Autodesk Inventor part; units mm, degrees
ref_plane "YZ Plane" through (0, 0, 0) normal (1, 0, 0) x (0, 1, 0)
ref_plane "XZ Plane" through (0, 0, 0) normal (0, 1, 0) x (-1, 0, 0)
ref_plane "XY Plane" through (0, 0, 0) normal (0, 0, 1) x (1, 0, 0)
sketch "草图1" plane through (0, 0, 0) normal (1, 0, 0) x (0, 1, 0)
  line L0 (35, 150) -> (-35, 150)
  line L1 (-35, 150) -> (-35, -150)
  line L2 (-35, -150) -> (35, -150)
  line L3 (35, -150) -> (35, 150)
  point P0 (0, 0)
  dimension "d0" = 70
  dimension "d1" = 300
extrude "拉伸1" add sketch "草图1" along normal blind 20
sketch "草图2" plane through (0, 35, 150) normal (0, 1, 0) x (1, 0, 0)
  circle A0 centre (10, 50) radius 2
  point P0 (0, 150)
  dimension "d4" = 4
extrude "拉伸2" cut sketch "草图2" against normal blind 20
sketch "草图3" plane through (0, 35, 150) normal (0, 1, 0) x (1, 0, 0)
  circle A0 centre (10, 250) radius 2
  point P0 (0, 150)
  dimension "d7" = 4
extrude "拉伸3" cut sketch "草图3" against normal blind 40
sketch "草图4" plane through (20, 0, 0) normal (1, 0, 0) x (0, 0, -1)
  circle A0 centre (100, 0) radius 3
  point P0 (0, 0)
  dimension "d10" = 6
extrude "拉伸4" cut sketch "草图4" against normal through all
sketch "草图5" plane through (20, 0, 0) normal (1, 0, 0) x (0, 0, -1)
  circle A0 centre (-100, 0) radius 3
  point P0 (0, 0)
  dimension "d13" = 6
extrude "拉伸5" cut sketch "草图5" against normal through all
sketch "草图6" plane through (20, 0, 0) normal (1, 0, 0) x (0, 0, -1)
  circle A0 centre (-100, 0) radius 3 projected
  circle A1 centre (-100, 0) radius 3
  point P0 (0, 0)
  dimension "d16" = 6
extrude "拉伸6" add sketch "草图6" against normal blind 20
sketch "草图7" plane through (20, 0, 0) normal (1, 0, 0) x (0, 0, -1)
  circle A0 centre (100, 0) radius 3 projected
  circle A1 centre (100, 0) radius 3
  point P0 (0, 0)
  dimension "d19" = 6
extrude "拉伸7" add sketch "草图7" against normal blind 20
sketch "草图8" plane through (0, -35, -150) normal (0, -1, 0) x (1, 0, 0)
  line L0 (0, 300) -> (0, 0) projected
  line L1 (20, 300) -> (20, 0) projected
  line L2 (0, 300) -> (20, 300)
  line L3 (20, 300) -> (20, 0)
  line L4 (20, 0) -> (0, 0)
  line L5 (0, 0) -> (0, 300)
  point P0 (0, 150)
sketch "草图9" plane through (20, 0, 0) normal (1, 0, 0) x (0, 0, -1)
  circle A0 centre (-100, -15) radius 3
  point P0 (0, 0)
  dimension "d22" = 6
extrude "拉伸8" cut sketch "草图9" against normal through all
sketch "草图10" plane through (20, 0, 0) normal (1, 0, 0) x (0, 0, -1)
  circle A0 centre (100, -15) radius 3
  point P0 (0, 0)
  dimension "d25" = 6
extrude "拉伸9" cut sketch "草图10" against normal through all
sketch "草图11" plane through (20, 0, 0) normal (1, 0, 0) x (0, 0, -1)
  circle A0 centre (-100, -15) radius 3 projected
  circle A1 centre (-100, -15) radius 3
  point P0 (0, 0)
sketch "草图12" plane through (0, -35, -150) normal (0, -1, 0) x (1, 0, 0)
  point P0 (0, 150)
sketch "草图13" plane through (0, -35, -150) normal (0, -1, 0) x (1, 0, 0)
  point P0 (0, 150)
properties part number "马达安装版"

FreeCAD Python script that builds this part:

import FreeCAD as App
import Part
import Sketcher
from FreeCAD import Vector
Q = App.Units.Quantity


def add_polygon(sketch, points):
    """Adds a closed chain of lines whose ends are joined by coincident constraints."""
    first, n = sketch.GeometryCount, len(points)
    for a, b in zip(points, points[1:] + points[:1]):
        sketch.addGeometry(Part.LineSegment(App.Vector(*a, 0), App.Vector(*b, 0)), False)
    for i in range(n):
        sketch.addConstraint(Sketcher.Constraint("Coincident", first + i, 2, first + (i + 1) % n, 1))

doc = App.newDocument("Part")
body = doc.addObject("PartDesign::Body", "Body")

# Sketch on YZ plane
sketch1 = body.newObject("Sketcher::SketchObject", "Sketch")
sketch1.AttachmentSupport = (doc.getObject("YZ_Plane"), [""])
sketch1.MapMode = "FlatFace"
add_polygon(sketch1, [(35, -150), (35, 150), (-35, 150), (-35, -150)])  # lines 0-3
sketch1.addConstraint(Sketcher.Constraint("Vertical", 0))
sketch1.addConstraint(Sketcher.Constraint("Horizontal", 1))
sketch1.addConstraint(Sketcher.Constraint("Vertical", 2))
sketch1.addConstraint(Sketcher.Constraint("Horizontal", 3))
sketch1.addConstraint(Sketcher.Constraint("Symmetric", 0, 2, 2, 2, -1, 1))
sketch1.addConstraint(Sketcher.Constraint("DistanceX", 1, 2, 1, 1, Q("70 mm")))
sketch1.addConstraint(Sketcher.Constraint("DistanceY", 0, 1, 0, 2, Q("300 mm")))
pad1 = body.newObject("PartDesign::Pad", "Pad")
pad1.Profile = sketch1
pad1.Length = 20

# Sketch on XZ plane
sketch2 = body.newObject("Sketcher::SketchObject", "Sketch001")
sketch2.AttachmentSupport = (doc.getObject("XZ_Plane"), [""])
sketch2.MapMode = "FlatFace"
sketch2.AttachmentOffset = App.Placement(Vector(0, 0, -35), App.Rotation())
sketch2.addGeometry(Part.Circle(Vector(10, 100, 0), Vector(0, 0, 1), 2), False)
sketch2.addConstraint(Sketcher.Constraint("Diameter", 0, Q("4 mm")))
sketch2.addConstraint(Sketcher.Constraint("DistanceX", -1, 1, 0, 3, Q("10 mm")))
sketch2.addConstraint(Sketcher.Constraint("DistanceY", -1, 1, 0, 3, Q("100 mm")))
pocket1 = body.newObject("PartDesign::Pocket", "Pocket")
pocket1.Profile = sketch2
pocket1.Length = 20
pocket1.Reversed = True

# Sketch on XZ plane
sketch3 = body.newObject("Sketcher::SketchObject", "Sketch002")
sketch3.AttachmentSupport = (doc.getObject("XZ_Plane"), [""])
sketch3.MapMode = "FlatFace"
sketch3.AttachmentOffset = App.Placement(Vector(0, 0, -35), App.Rotation())
sketch3.addGeometry(Part.Circle(Vector(10, -100, 0), Vector(0, 0, 1), 2), False)
sketch3.addConstraint(Sketcher.Constraint("Diameter", 0, Q("4 mm")))
sketch3.addConstraint(Sketcher.Constraint("DistanceX", -1, 1, 0, 3, Q("10 mm")))
sketch3.addConstraint(Sketcher.Constraint("DistanceY", 0, 3, -1, 1, Q("100 mm")))
pocket2 = body.newObject("PartDesign::Pocket", "Pocket001")
pocket2.Profile = sketch3
pocket2.Length = 40
pocket2.Reversed = True

# Sketch on YZ plane
sketch4 = body.newObject("Sketcher::SketchObject", "Sketch003")
sketch4.AttachmentSupport = (doc.getObject("YZ_Plane"), [""])
sketch4.MapMode = "FlatFace"
sketch4.AttachmentOffset = App.Placement(Vector(0, 0, 20), App.Rotation())
sketch4.addGeometry(Part.Circle(Vector(0, -100, 0), Vector(0, 0, 1), 3), False)
sketch4.addConstraint(Sketcher.Constraint("PointOnObject", 0, 3, -2))
sketch4.addConstraint(Sketcher.Constraint("Diameter", 0, Q("6 mm")))
sketch4.addConstraint(Sketcher.Constraint("DistanceY", 0, 3, -1, 1, Q("100 mm")))
pocket3 = body.newObject("PartDesign::Pocket", "Pocket002")
pocket3.Profile = sketch4
pocket3.Type = "ThroughAll"

# Sketch on YZ plane
sketch5 = body.newObject("Sketcher::SketchObject", "Sketch004")
sketch5.AttachmentSupport = (doc.getObject("YZ_Plane"), [""])
sketch5.MapMode = "FlatFace"
sketch5.AttachmentOffset = App.Placement(Vector(0, 0, 20), App.Rotation())
sketch5.addGeometry(Part.Circle(Vector(0, 100, 0), Vector(0, 0, 1), 3), False)
sketch5.addConstraint(Sketcher.Constraint("PointOnObject", 0, 3, -2))
sketch5.addConstraint(Sketcher.Constraint("Diameter", 0, Q("6 mm")))
sketch5.addConstraint(Sketcher.Constraint("DistanceY", -1, 1, 0, 3, Q("100 mm")))
pocket4 = body.newObject("PartDesign::Pocket", "Pocket003")
pocket4.Profile = sketch5
pocket4.Type = "ThroughAll"

# Sketch on YZ plane
sketch6 = body.newObject("Sketcher::SketchObject", "Sketch005")
sketch6.AttachmentSupport = (doc.getObject("YZ_Plane"), [""])
sketch6.MapMode = "FlatFace"
sketch6.AttachmentOffset = App.Placement(Vector(0, 0, 20), App.Rotation())
sketch6.addGeometry(Part.Circle(Vector(0, 100, 0), Vector(0, 0, 1), 3), False)
sketch6.addConstraint(Sketcher.Constraint("PointOnObject", 0, 3, -2))
sketch6.addConstraint(Sketcher.Constraint("Diameter", 0, Q("6 mm")))
sketch6.addConstraint(Sketcher.Constraint("DistanceY", -1, 1, 0, 3, Q("100 mm")))
pad2 = body.newObject("PartDesign::Pad", "Pad001")
pad2.Profile = sketch6
pad2.Length = 20
pad2.Reversed = True

# Sketch on YZ plane
sketch7 = body.newObject("Sketcher::SketchObject", "Sketch006")
sketch7.AttachmentSupport = (doc.getObject("YZ_Plane"), [""])
sketch7.MapMode = "FlatFace"
sketch7.AttachmentOffset = App.Placement(Vector(0, 0, 20), App.Rotation())
sketch7.addGeometry(Part.Circle(Vector(0, -100, 0), Vector(0, 0, 1), 3), False)
sketch7.addConstraint(Sketcher.Constraint("PointOnObject", 0, 3, -2))
sketch7.addConstraint(Sketcher.Constraint("Diameter", 0, Q("6 mm")))
sketch7.addConstraint(Sketcher.Constraint("DistanceY", 0, 3, -1, 1, Q("100 mm")))
pad3 = body.newObject("PartDesign::Pad", "Pad002")
pad3.Profile = sketch7
pad3.Length = 20
pad3.Reversed = True

# Sketch on YZ plane
sketch8 = body.newObject("Sketcher::SketchObject", "Sketch007")
sketch8.AttachmentSupport = (doc.getObject("YZ_Plane"), [""])
sketch8.MapMode = "FlatFace"
sketch8.AttachmentOffset = App.Placement(Vector(0, 0, 20), App.Rotation())
sketch8.addGeometry(Part.Circle(Vector(-15, 100, 0), Vector(0, 0, 1), 3), False)
sketch8.addConstraint(Sketcher.Constraint("Diameter", 0, Q("6 mm")))
sketch8.addConstraint(Sketcher.Constraint("DistanceX", 0, 3, -1, 1, Q("15 mm")))
sketch8.addConstraint(Sketcher.Constraint("DistanceY", -1, 1, 0, 3, Q("100 mm")))
pocket5 = body.newObject("PartDesign::Pocket", "Pocket004")
pocket5.Profile = sketch8
pocket5.Type = "ThroughAll"

# Sketch on YZ plane
sketch9 = body.newObject("Sketcher::SketchObject", "Sketch008")
sketch9.AttachmentSupport = (doc.getObject("YZ_Plane"), [""])
sketch9.MapMode = "FlatFace"
sketch9.AttachmentOffset = App.Placement(Vector(0, 0, 20), App.Rotation())
sketch9.addGeometry(Part.Circle(Vector(-15, -100, 0), Vector(0, 0, 1), 3), False)
sketch9.addConstraint(Sketcher.Constraint("Diameter", 0, Q("6 mm")))
sketch9.addConstraint(Sketcher.Constraint("DistanceX", 0, 3, -1, 1, Q("15 mm")))
sketch9.addConstraint(Sketcher.Constraint("DistanceY", 0, 3, -1, 1, Q("100 mm")))
pocket6 = body.newObject("PartDesign::Pocket", "Pocket005")
pocket6.Profile = sketch9
pocket6.Type = "ThroughAll"

doc.recompute()
